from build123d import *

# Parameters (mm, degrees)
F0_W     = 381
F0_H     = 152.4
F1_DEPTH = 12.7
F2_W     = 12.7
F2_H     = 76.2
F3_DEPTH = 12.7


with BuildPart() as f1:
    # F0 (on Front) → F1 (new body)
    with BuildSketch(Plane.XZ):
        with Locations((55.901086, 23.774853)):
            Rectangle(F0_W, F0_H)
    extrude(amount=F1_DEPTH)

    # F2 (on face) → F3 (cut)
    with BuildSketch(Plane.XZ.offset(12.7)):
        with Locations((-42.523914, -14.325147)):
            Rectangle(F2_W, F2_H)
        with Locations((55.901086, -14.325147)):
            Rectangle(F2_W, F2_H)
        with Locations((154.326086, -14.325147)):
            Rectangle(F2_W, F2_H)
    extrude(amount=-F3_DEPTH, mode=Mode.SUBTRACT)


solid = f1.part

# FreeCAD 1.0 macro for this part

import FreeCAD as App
import Part
import Sketcher

V = App.Vector
Q = App.Units.Quantity


def add_polygon(sketch, points):
    """Adds a closed chain of lines whose ends are joined by coincident constraints."""
    first, n = sketch.GeometryCount, len(points)
    for a, b in zip(points, points[1:] + points[:1]):
        sketch.addGeometry(Part.LineSegment(App.Vector(*a, 0), App.Vector(*b, 0)), False)
    for i in range(n):
        sketch.addConstraint(Sketcher.Constraint("Coincident", first + i, 2, first + (i + 1) % n, 1))

doc = App.newDocument("Part")
params = doc.addObject("Spreadsheet::Sheet", "Params")
for row, (alias, value) in enumerate([
    ("sketch1_width", "15 in"),
    ("sketch1_height", "6 in"),
    ("pad1_length", "0.5 in"),
    ("sketch2_height", "3 in"),
    ("sketch2_width", "0.5 in"),
    ("pocket1_length", "0.5 in"),
], start=1):
    params.set(f"A{row}", alias)
    params.set(f"B{row}", "=" + value)
    params.setAlias(f"B{row}", alias)

body = doc.addObject("PartDesign::Body", "Body")

# Sketch on XZ plane
sketch1 = body.newObject("Sketcher::SketchObject", "Sketch")
sketch1.AttachmentSupport = (doc.getObject("XZ_Plane"), [""])
sketch1.MapMode = "FlatFace"
add_polygon(sketch1, [(-135, 100), (-135, -52), (246, -52), (246, 100)])  # lines 0-3
sketch1.addConstraint([
    Sketcher.Constraint("Vertical", 0),
    Sketcher.Constraint("Horizontal", 1),
    Sketcher.Constraint("Vertical", 2),
    Sketcher.Constraint("Horizontal", 3),
    Sketcher.Constraint("DistanceX", 1, 1, 1, 2, Q("15 in")),
    Sketcher.Constraint("DistanceY", 0, 2, 0, 1, Q("6 in")),
    Sketcher.Constraint("DistanceX", 0, 2, -1, 1, 134.598914),
    Sketcher.Constraint("DistanceY", 0, 2, -1, 1, 52.425147),
])
sketch1.setExpression("Constraints[8]", "Params.sketch1_width")
sketch1.setExpression("Constraints[9]", "Params.sketch1_height")
pad1 = body.newObject("PartDesign::Pad", "Pad")
pad1.Profile = sketch1
pad1.setExpression("Length", "Params.pad1_length")

# Sketch on XZ plane
sketch2 = body.newObject("Sketcher::SketchObject", "Sketch001")
sketch2.AttachmentSupport = (doc.getObject("XZ_Plane"), [""])
sketch2.MapMode = "FlatFace"
sketch2.AttachmentOffset = App.Placement(V(0, 0, 0.5 * 25.4), App.Rotation())
add_polygon(sketch2, [(-49, 24), (-49, -52), (-36, -52), (-36, 24)])  # lines 0-3
add_polygon(sketch2, [(50, 24), (50, -52), (62, -52), (62, 24)])  # lines 4-7
add_polygon(sketch2, [(148, 24), (148, -52), (161, -52), (161, 24)])  # lines 8-11
sketch2.addConstraint([
    Sketcher.Constraint("Vertical", 0),
    Sketcher.Constraint("Horizontal", 1),
    Sketcher.Constraint("Vertical", 2),
    Sketcher.Constraint("Horizontal", 3),
    Sketcher.Constraint("Vertical", 4),
    Sketcher.Constraint("Horizontal", 5),
    Sketcher.Constraint("Vertical", 6),
    Sketcher.Constraint("Horizontal", 7),
    Sketcher.Constraint("Vertical", 8),
    Sketcher.Constraint("Horizontal", 9),
    Sketcher.Constraint("Vertical", 10),
    Sketcher.Constraint("Horizontal", 11),
    Sketcher.Constraint("Horizontal", 1, 2, 4, 2),
    Sketcher.Constraint("Horizontal", 3, 2, 6, 2),
    Sketcher.Constraint("Horizontal", 5, 2, 8, 2),
    Sketcher.Constraint("Horizontal", 7, 2, 10, 2),
    Sketcher.Constraint("Equal", 3, 5),
    Sketcher.Constraint("Equal", 7, 9),
    Sketcher.Constraint("DistanceY", 0, 2, 0, 1, Q("3 in")),
    Sketcher.Constraint("DistanceX", 1, 1, 1, 2, Q("0.5 in")),
    Sketcher.Constraint("DistanceX", 1, 2, 8, 2, Q("7.25 in")),
    Sketcher.Constraint("DistanceX", 1, 2, 4, 2, Q("3.375 in")),
    Sketcher.Constraint("DistanceX", 0, 2, -1, 1, 48.873914),
    Sketcher.Constraint("DistanceY", 0, 2, -1, 1, 52.425147),
])
sketch2.setExpression("Constraints[30]", "Params.sketch2_height")
sketch2.setExpression("Constraints[31]", "Params.sketch2_width")
pocket1 = body.newObject("PartDesign::Pocket", "Pocket")
pocket1.Profile = sketch2
pocket1.setExpression("Length", "Params.pocket1_length")

doc.recompute()
